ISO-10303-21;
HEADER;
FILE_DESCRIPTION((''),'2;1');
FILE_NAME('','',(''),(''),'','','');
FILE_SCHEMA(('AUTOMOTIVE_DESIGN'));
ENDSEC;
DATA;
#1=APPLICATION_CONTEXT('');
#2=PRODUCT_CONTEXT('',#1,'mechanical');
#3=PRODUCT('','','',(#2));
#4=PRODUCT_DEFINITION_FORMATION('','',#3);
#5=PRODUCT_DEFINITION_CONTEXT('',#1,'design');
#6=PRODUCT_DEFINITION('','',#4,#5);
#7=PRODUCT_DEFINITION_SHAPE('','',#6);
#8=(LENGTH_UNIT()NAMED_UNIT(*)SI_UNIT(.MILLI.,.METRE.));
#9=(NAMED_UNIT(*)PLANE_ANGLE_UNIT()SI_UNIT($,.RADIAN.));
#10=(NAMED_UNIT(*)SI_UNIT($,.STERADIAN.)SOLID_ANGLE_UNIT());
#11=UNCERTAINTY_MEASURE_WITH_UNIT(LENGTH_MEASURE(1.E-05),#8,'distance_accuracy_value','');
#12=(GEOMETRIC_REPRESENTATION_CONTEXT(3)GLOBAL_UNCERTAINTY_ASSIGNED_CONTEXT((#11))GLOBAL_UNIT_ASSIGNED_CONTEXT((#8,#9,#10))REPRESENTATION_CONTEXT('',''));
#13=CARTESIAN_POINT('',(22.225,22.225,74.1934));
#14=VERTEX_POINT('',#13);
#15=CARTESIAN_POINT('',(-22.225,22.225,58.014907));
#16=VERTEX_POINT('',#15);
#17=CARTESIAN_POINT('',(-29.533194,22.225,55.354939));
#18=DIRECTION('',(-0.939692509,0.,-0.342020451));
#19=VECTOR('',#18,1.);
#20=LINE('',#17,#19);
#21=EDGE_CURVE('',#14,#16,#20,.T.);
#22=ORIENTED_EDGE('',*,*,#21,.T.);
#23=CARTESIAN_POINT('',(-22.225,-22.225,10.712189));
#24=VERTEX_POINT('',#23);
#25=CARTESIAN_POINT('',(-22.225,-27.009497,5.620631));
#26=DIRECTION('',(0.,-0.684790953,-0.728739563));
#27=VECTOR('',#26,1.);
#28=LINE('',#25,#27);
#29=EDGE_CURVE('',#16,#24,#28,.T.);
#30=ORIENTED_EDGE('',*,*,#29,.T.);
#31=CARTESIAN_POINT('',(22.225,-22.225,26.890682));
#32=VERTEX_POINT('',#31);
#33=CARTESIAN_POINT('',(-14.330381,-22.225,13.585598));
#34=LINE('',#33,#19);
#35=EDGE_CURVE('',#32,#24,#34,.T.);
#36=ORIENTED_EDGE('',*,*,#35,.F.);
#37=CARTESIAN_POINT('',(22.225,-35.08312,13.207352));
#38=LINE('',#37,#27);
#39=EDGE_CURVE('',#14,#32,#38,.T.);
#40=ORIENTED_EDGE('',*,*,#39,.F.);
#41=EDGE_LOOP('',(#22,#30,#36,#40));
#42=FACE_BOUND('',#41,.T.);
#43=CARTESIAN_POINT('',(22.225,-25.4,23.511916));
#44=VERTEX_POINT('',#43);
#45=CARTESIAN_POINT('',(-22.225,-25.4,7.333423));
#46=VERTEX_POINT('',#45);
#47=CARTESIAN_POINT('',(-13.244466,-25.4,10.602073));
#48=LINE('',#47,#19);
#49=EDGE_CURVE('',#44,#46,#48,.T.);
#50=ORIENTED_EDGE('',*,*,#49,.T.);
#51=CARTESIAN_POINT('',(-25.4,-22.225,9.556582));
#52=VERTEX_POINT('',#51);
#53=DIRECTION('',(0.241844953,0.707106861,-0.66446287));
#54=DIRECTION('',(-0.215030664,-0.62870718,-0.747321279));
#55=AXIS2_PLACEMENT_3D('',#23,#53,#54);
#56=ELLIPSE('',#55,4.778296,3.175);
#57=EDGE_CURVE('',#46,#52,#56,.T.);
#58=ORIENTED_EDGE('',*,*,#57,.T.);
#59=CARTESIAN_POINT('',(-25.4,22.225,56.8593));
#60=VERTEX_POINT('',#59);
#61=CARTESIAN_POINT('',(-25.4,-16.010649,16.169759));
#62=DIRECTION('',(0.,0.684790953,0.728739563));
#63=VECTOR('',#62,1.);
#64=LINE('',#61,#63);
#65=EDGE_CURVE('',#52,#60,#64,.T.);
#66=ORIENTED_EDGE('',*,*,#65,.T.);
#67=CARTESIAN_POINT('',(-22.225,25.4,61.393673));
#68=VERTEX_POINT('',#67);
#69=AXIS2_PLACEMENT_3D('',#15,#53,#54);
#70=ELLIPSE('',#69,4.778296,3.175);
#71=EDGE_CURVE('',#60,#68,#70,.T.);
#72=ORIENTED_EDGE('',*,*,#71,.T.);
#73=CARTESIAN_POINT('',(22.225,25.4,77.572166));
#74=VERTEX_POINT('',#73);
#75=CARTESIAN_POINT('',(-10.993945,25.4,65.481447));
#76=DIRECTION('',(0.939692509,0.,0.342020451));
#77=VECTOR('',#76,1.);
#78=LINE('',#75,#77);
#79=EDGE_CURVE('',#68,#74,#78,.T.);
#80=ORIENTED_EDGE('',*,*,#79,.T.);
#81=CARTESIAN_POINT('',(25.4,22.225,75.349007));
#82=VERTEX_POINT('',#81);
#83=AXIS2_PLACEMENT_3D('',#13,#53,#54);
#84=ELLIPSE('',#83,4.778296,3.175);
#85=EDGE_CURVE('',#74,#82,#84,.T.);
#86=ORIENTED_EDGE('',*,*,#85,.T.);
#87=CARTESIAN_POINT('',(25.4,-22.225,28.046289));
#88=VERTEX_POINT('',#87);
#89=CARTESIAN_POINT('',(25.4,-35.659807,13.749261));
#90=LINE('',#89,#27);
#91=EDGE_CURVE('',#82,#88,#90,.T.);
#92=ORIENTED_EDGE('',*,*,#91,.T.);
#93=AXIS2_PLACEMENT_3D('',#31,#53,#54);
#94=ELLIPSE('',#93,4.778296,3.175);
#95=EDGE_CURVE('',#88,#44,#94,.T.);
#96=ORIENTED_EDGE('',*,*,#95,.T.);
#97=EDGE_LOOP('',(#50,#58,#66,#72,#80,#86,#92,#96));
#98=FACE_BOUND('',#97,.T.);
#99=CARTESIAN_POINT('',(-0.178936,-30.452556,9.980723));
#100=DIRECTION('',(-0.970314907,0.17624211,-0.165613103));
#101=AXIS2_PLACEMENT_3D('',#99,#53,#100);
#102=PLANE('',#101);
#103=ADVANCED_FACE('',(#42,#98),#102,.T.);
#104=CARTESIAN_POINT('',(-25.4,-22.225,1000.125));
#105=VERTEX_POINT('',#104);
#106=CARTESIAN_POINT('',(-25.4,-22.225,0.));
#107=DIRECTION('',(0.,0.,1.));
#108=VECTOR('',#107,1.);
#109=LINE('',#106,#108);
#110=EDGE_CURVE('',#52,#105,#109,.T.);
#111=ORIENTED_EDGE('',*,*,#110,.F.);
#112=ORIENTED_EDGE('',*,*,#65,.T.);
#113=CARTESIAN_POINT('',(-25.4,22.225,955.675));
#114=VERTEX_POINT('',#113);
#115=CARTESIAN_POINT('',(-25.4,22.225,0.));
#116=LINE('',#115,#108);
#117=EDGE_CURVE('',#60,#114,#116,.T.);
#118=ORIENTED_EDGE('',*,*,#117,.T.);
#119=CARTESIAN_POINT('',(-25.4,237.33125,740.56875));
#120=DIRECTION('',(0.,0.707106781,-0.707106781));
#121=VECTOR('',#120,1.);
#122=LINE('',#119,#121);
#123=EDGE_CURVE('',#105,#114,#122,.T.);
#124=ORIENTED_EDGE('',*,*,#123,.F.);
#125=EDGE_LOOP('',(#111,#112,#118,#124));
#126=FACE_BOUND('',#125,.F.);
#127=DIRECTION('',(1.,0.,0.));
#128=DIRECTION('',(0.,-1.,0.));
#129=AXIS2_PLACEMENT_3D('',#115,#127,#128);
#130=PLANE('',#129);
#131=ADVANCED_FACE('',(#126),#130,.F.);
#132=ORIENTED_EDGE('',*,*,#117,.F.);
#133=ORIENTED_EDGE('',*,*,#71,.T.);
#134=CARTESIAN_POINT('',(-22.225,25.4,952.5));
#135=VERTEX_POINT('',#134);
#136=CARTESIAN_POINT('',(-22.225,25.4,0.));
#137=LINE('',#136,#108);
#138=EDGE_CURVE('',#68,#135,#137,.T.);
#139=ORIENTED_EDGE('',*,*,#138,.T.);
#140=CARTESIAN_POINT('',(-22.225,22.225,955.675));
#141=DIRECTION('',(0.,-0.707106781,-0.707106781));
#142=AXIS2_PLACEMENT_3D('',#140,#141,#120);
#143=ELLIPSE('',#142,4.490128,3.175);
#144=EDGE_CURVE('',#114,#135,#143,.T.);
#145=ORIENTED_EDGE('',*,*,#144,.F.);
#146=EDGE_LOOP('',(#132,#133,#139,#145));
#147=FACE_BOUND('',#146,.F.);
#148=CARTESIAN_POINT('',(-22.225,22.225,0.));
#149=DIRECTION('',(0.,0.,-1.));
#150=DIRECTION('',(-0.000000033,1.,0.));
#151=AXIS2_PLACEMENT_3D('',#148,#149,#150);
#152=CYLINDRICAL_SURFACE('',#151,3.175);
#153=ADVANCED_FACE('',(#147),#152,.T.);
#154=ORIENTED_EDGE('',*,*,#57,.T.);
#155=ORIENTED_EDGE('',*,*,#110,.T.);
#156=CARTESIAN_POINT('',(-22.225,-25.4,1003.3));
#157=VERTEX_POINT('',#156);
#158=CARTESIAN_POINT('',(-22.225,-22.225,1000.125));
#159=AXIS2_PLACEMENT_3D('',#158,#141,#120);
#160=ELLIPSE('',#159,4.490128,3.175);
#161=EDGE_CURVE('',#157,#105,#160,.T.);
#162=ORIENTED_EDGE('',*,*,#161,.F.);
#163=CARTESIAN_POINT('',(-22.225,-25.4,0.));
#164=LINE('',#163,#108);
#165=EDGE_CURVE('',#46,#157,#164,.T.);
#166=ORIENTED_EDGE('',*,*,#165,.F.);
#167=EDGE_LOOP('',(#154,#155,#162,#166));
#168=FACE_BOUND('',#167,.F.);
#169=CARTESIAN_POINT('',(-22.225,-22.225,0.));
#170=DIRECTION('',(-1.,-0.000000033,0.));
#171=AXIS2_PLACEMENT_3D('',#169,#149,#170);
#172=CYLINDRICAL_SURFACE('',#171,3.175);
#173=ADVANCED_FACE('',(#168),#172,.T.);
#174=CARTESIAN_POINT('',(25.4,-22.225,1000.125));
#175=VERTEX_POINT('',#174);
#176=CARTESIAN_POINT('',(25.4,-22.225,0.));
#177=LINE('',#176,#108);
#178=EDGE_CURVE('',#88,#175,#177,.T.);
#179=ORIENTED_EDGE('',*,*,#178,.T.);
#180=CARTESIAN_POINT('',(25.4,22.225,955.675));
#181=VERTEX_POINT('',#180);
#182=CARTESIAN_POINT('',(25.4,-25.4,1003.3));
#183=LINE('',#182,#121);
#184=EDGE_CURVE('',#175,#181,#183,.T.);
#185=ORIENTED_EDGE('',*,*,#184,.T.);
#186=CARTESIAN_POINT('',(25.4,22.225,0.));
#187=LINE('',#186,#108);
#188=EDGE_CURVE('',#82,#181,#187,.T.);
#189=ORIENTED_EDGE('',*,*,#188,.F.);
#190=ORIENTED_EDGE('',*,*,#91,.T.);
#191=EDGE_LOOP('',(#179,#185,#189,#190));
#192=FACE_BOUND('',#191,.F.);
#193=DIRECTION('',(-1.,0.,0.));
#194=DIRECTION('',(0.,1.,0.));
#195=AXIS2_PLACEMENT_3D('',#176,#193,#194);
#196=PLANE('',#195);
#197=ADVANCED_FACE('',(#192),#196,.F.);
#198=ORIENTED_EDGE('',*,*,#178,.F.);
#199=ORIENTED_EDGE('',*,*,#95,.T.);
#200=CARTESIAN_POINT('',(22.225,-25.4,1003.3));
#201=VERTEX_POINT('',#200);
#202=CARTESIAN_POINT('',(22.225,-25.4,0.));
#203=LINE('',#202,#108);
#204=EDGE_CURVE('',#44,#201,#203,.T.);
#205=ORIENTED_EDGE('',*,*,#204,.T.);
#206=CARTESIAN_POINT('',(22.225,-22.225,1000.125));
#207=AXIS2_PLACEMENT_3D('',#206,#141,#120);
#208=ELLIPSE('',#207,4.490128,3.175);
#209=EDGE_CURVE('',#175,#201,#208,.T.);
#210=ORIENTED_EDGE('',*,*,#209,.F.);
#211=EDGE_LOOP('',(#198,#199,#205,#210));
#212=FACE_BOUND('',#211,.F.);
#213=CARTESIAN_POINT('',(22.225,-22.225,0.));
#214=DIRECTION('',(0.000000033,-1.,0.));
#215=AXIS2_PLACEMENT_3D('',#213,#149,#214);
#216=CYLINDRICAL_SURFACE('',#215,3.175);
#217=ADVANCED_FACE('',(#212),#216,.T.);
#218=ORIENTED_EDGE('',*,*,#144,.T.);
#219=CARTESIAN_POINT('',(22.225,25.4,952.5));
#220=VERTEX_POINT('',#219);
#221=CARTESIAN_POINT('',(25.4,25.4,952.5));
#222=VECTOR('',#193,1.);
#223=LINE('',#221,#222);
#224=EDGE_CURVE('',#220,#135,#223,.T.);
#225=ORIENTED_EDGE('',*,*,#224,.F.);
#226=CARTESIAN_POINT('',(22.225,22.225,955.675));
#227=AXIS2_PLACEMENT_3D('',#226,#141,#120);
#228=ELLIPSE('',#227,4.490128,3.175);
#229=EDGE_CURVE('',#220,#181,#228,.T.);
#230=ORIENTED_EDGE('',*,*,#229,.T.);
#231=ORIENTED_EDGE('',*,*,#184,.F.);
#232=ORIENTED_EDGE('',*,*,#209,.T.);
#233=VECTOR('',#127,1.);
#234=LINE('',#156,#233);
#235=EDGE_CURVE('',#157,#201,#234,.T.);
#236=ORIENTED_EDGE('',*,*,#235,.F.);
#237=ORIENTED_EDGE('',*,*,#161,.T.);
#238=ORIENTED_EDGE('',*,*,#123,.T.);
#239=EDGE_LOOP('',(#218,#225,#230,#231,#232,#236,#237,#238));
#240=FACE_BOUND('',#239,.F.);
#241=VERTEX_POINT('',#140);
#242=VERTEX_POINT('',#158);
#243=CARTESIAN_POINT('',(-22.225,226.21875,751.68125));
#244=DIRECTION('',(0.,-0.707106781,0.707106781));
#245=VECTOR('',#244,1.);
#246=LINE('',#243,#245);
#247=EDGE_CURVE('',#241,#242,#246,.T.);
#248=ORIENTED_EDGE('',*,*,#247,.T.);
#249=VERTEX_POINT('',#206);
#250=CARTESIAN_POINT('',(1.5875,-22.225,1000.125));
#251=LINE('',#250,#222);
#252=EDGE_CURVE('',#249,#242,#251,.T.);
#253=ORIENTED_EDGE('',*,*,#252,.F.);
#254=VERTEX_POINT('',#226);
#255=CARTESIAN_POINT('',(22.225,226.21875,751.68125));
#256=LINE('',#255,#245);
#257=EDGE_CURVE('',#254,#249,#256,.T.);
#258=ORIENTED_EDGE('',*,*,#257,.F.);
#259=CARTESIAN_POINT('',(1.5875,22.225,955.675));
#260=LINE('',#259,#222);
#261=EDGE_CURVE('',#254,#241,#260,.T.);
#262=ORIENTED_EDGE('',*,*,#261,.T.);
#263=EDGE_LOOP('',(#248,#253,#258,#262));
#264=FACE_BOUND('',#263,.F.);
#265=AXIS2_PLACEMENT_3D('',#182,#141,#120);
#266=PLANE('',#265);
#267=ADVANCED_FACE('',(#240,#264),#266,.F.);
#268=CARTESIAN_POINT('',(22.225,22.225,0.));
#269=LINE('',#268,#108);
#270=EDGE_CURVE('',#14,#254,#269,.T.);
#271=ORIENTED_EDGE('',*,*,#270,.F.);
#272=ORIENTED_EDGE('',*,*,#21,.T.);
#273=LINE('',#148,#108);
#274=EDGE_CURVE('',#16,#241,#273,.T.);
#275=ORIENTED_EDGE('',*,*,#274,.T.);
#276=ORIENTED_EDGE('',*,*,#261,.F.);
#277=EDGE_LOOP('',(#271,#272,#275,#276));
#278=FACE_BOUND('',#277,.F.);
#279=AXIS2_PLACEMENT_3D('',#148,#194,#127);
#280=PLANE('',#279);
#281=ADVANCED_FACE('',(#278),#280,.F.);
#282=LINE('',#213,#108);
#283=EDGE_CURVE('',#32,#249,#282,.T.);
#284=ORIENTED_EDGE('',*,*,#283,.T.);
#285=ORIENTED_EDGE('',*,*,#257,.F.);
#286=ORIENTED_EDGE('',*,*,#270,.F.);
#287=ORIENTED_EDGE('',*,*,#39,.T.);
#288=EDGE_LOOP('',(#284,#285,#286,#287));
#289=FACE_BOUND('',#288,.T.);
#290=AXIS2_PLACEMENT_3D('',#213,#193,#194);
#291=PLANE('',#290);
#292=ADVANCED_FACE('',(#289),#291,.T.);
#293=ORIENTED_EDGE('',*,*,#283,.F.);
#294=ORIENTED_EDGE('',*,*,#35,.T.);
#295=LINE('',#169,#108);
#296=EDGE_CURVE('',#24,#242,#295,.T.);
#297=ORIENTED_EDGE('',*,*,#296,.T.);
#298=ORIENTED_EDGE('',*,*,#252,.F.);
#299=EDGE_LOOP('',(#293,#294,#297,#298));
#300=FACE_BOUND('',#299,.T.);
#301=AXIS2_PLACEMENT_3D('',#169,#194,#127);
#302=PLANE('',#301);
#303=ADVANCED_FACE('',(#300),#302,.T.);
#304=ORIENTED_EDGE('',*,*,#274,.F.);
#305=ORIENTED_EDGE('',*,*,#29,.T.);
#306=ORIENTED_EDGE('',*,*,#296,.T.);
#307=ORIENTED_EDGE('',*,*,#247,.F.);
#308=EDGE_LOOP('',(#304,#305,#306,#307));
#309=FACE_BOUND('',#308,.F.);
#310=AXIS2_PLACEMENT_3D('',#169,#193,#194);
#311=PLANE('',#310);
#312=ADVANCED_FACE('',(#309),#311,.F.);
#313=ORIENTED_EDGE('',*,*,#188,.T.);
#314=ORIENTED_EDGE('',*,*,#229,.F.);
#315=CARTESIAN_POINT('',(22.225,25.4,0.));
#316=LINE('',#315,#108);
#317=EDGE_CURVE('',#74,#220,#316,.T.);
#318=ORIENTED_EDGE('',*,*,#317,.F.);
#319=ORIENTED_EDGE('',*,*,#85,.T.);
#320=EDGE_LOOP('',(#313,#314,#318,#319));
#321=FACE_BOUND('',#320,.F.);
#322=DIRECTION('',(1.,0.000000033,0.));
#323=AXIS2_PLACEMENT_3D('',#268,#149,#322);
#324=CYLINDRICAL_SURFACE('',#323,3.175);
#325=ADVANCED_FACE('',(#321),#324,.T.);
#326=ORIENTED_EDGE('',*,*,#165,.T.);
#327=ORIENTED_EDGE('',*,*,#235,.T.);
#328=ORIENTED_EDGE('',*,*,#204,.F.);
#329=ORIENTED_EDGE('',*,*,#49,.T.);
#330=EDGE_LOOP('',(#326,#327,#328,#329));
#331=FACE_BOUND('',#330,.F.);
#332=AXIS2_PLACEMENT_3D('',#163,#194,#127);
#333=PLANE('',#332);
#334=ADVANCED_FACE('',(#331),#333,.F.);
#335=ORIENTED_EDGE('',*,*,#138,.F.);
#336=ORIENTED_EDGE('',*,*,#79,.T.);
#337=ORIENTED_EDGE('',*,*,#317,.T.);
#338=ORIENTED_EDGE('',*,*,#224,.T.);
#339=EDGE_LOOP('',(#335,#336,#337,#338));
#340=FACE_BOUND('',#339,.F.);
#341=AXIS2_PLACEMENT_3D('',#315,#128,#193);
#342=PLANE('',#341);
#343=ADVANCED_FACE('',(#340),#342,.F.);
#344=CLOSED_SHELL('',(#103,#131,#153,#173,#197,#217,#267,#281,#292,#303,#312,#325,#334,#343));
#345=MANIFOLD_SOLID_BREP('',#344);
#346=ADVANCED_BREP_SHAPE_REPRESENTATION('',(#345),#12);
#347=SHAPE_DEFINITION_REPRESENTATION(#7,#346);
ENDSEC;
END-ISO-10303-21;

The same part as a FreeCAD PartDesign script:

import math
import FreeCAD as App
import Part
import Sketcher

V = App.Vector
Q = App.Units.Quantity


def add_polygon(sketch, points):
    """Adds a closed chain of lines whose ends are joined by coincident constraints."""
    first, n = sketch.GeometryCount, len(points)
    for a, b in zip(points, points[1:] + points[:1]):
        sketch.addGeometry(Part.LineSegment(App.Vector(*a, 0), App.Vector(*b, 0)), False)
    for i in range(n):
        sketch.addConstraint(Sketcher.Constraint("Coincident", first + i, 2, first + (i + 1) % n, 1))

doc = App.newDocument("Part")
body = doc.addObject("PartDesign::Body", "Body")

sketch1 = body.newObject("Sketcher::SketchObject", "Sketch")
sketch1.AttachmentSupport = (doc.getObject("XY_Plane"), [""])
sketch1.MapMode = "FlatFace"
sketch1.addGeometry(Part.ArcOfCircle(Part.Circle(V(22.2, 22.2, 0), V(0, 0, 1), 3.2), math.radians(0), math.radians(90)), False)
sketch1.addGeometry(Part.LineSegment(V(22.2, 25.4, 0), V(-22.2, 25.4, 0)), False)
sketch1.addGeometry(Part.ArcOfCircle(Part.Circle(V(-22.2, 22.2, 0), V(0, 0, 1), 3.2), math.radians(90), math.radians(180)), False)
sketch1.addGeometry(Part.LineSegment(V(-25.4, 22.2, 0), V(-25.4, -22.2, 0)), False)
sketch1.addGeometry(Part.ArcOfCircle(Part.Circle(V(-22.2, -22.2, 0), V(0, 0, 1), 3.2), math.radians(-180), math.radians(-90)), False)
sketch1.addGeometry(Part.LineSegment(V(-22.2, -25.4, 0), V(22.2, -25.4, 0)), False)
sketch1.addGeometry(Part.ArcOfCircle(Part.Circle(V(22.2, -22.2, 0), V(0, 0, 1), 3.2), math.radians(-90), math.radians(0)), False)
sketch1.addGeometry(Part.LineSegment(V(25.4, -22.2, 0), V(25.4, 22.2, 0)), False)
add_polygon(sketch1, [(22.2, -22.2), (-22.2, -22.2), (-22.2, 22.2), (22.2, 22.2)])
sketch1.addConstraint([
    Sketcher.Constraint("Tangent", 0, 2, 1, 1),
    Sketcher.Constraint("Tangent", 1, 2, 2, 1),
    Sketcher.Constraint("Tangent", 2, 2, 3, 1),
    Sketcher.Constraint("Tangent", 3, 2, 4, 1),
    Sketcher.Constraint("Tangent", 4, 2, 5, 1),
    Sketcher.Constraint("Tangent", 5, 2, 6, 1),
    Sketcher.Constraint("Tangent", 6, 2, 7, 1),
    Sketcher.Constraint("Tangent", 7, 2, 0, 1),
    Sketcher.Constraint("Horizontal", 1),
    Sketcher.Constraint("Vertical", 3),
    Sketcher.Constraint("Horizontal", 5),
    Sketcher.Constraint("Vertical", 7),
    Sketcher.Constraint("Horizontal", 8),
    Sketcher.Constraint("Vertical", 9),
    Sketcher.Constraint("Horizontal", 10),
    Sketcher.Constraint("Vertical", 11),
    Sketcher.Constraint("Coincident", 8, 2, 4, 3),
    Sketcher.Constraint("Coincident", 9, 2, 2, 3),
    Sketcher.Constraint("Coincident", 10, 2, 0, 3),
    Sketcher.Constraint("Equal", 4, 6),
    Sketcher.Constraint("Symmetric", 0, 3, 4, 3, -1, 1),
    Sketcher.Constraint("Equal", 10, 3),
    Sketcher.Constraint("DistanceY", -1, 1, 0, 2, Q("1 in")),
    Sketcher.Constraint("Radius", 0, Q("0.125 in")),
])
pad1 = body.newObject("PartDesign::Pad", "Pad")
pad1.Profile = sketch1
pad1.Length = Q("39.5 in")

sketch2 = body.newObject("Sketcher::SketchObject", "Sketch001")
sketch2.AttachmentSupport = (doc.getObject("YZ_Plane"), [""])
sketch2.MapMode = "FlatFace"
sketch2.AttachmentOffset = App.Placement(V(0, 0, 1 * 25.4), App.Rotation())
add_polygon(sketch2, [(25, 1003), (-25, 1003), (25, 952)])
sketch2.addConstraint([
    Sketcher.Constraint("Horizontal", 0),
    Sketcher.Constraint("Vertical", 2),
    Sketcher.Constraint("Equal", 0, 2),
    Sketcher.Constraint("DistanceX", 0, 2, 0, 1, Q("2 in")),
    Sketcher.Constraint("DistanceX", 0, 2, -1, 1, Q("1 in")),
    Sketcher.Constraint("DistanceY", -1, 1, 0, 2, Q("39.5 in")),
])
pocket1 = body.newObject("PartDesign::Pocket", "Pocket")
pocket1.Profile = sketch2
pocket1.Type = "ThroughAll"

sketch3 = body.newObject("Sketcher::SketchObject", "Sketch002")
sketch3.AttachmentSupport = (doc.getObject("XZ_Plane"), [""])
sketch3.MapMode = "FlatFace"
sketch3.AttachmentOffset = App.Placement(V(0, 0, 1 * 25.4), App.Rotation())
add_polygon(sketch3, [(-25, 0), (25, 0), (25, 18)])
sketch3.addConstraint([
    Sketcher.Constraint("Horizontal", 0),
    Sketcher.Constraint("Vertical", 1),
    Sketcher.Constraint("Symmetric", 0, 2, 2, 2, -1, 1),
    Sketcher.Constraint("DistanceX", 0, 1, 0, 2, Q("2 in")),
    Sketcher.Constraint("Angle", 2, Q("-160 deg")),
])
pocket2 = body.newObject("PartDesign::Pocket", "Pocket001")
pocket2.Profile = sketch3
pocket2.Type = "ThroughAll"

sketch4 = body.newObject("Sketcher::SketchObject", "Sketch003")
sketch4.Placement = App.Placement(V(-5.286317, -15.456156, 14.524036), App.Rotation(V(-0.970314907, 0.17624211, -0.165613103), V(0.000000177, 0.684790921, 0.728739593), V(0.241844953, 0.707106861, -0.66446287), "ZXY"))
add_polygon(sketch4, [(-98, 88), (-98, -115), (84, -115), (84, 88)])
sketch4.addConstraint([
    Sketcher.Constraint("Vertical", 0),
    Sketcher.Constraint("Horizontal", 1),
    Sketcher.Constraint("Vertical", 2),
    Sketcher.Constraint("Horizontal", 3),
    Sketcher.Constraint("DistanceY", 0, 2, 0, 1, Q("8 in")),
    Sketcher.Constraint("DistanceX", 1, 1, 1, 2, Q("181.430888 mm")),
    Sketcher.Constraint("DistanceY", 0, 2, -1, 1, Q("115.18029 mm")),
    Sketcher.Constraint("DistanceX", -1, 1, 1, 2, Q("83.869111 mm")),
])
pocket3 = body.newObject("PartDesign::Pocket", "Pocket002")
pocket3.Profile = sketch4
pocket3.Type = "TwoLengths"
pocket3.Length = Q("2 in")
pocket3.Length2 = Q("0.25 in")
pocket3.Reversed = True

doc.recompute()
